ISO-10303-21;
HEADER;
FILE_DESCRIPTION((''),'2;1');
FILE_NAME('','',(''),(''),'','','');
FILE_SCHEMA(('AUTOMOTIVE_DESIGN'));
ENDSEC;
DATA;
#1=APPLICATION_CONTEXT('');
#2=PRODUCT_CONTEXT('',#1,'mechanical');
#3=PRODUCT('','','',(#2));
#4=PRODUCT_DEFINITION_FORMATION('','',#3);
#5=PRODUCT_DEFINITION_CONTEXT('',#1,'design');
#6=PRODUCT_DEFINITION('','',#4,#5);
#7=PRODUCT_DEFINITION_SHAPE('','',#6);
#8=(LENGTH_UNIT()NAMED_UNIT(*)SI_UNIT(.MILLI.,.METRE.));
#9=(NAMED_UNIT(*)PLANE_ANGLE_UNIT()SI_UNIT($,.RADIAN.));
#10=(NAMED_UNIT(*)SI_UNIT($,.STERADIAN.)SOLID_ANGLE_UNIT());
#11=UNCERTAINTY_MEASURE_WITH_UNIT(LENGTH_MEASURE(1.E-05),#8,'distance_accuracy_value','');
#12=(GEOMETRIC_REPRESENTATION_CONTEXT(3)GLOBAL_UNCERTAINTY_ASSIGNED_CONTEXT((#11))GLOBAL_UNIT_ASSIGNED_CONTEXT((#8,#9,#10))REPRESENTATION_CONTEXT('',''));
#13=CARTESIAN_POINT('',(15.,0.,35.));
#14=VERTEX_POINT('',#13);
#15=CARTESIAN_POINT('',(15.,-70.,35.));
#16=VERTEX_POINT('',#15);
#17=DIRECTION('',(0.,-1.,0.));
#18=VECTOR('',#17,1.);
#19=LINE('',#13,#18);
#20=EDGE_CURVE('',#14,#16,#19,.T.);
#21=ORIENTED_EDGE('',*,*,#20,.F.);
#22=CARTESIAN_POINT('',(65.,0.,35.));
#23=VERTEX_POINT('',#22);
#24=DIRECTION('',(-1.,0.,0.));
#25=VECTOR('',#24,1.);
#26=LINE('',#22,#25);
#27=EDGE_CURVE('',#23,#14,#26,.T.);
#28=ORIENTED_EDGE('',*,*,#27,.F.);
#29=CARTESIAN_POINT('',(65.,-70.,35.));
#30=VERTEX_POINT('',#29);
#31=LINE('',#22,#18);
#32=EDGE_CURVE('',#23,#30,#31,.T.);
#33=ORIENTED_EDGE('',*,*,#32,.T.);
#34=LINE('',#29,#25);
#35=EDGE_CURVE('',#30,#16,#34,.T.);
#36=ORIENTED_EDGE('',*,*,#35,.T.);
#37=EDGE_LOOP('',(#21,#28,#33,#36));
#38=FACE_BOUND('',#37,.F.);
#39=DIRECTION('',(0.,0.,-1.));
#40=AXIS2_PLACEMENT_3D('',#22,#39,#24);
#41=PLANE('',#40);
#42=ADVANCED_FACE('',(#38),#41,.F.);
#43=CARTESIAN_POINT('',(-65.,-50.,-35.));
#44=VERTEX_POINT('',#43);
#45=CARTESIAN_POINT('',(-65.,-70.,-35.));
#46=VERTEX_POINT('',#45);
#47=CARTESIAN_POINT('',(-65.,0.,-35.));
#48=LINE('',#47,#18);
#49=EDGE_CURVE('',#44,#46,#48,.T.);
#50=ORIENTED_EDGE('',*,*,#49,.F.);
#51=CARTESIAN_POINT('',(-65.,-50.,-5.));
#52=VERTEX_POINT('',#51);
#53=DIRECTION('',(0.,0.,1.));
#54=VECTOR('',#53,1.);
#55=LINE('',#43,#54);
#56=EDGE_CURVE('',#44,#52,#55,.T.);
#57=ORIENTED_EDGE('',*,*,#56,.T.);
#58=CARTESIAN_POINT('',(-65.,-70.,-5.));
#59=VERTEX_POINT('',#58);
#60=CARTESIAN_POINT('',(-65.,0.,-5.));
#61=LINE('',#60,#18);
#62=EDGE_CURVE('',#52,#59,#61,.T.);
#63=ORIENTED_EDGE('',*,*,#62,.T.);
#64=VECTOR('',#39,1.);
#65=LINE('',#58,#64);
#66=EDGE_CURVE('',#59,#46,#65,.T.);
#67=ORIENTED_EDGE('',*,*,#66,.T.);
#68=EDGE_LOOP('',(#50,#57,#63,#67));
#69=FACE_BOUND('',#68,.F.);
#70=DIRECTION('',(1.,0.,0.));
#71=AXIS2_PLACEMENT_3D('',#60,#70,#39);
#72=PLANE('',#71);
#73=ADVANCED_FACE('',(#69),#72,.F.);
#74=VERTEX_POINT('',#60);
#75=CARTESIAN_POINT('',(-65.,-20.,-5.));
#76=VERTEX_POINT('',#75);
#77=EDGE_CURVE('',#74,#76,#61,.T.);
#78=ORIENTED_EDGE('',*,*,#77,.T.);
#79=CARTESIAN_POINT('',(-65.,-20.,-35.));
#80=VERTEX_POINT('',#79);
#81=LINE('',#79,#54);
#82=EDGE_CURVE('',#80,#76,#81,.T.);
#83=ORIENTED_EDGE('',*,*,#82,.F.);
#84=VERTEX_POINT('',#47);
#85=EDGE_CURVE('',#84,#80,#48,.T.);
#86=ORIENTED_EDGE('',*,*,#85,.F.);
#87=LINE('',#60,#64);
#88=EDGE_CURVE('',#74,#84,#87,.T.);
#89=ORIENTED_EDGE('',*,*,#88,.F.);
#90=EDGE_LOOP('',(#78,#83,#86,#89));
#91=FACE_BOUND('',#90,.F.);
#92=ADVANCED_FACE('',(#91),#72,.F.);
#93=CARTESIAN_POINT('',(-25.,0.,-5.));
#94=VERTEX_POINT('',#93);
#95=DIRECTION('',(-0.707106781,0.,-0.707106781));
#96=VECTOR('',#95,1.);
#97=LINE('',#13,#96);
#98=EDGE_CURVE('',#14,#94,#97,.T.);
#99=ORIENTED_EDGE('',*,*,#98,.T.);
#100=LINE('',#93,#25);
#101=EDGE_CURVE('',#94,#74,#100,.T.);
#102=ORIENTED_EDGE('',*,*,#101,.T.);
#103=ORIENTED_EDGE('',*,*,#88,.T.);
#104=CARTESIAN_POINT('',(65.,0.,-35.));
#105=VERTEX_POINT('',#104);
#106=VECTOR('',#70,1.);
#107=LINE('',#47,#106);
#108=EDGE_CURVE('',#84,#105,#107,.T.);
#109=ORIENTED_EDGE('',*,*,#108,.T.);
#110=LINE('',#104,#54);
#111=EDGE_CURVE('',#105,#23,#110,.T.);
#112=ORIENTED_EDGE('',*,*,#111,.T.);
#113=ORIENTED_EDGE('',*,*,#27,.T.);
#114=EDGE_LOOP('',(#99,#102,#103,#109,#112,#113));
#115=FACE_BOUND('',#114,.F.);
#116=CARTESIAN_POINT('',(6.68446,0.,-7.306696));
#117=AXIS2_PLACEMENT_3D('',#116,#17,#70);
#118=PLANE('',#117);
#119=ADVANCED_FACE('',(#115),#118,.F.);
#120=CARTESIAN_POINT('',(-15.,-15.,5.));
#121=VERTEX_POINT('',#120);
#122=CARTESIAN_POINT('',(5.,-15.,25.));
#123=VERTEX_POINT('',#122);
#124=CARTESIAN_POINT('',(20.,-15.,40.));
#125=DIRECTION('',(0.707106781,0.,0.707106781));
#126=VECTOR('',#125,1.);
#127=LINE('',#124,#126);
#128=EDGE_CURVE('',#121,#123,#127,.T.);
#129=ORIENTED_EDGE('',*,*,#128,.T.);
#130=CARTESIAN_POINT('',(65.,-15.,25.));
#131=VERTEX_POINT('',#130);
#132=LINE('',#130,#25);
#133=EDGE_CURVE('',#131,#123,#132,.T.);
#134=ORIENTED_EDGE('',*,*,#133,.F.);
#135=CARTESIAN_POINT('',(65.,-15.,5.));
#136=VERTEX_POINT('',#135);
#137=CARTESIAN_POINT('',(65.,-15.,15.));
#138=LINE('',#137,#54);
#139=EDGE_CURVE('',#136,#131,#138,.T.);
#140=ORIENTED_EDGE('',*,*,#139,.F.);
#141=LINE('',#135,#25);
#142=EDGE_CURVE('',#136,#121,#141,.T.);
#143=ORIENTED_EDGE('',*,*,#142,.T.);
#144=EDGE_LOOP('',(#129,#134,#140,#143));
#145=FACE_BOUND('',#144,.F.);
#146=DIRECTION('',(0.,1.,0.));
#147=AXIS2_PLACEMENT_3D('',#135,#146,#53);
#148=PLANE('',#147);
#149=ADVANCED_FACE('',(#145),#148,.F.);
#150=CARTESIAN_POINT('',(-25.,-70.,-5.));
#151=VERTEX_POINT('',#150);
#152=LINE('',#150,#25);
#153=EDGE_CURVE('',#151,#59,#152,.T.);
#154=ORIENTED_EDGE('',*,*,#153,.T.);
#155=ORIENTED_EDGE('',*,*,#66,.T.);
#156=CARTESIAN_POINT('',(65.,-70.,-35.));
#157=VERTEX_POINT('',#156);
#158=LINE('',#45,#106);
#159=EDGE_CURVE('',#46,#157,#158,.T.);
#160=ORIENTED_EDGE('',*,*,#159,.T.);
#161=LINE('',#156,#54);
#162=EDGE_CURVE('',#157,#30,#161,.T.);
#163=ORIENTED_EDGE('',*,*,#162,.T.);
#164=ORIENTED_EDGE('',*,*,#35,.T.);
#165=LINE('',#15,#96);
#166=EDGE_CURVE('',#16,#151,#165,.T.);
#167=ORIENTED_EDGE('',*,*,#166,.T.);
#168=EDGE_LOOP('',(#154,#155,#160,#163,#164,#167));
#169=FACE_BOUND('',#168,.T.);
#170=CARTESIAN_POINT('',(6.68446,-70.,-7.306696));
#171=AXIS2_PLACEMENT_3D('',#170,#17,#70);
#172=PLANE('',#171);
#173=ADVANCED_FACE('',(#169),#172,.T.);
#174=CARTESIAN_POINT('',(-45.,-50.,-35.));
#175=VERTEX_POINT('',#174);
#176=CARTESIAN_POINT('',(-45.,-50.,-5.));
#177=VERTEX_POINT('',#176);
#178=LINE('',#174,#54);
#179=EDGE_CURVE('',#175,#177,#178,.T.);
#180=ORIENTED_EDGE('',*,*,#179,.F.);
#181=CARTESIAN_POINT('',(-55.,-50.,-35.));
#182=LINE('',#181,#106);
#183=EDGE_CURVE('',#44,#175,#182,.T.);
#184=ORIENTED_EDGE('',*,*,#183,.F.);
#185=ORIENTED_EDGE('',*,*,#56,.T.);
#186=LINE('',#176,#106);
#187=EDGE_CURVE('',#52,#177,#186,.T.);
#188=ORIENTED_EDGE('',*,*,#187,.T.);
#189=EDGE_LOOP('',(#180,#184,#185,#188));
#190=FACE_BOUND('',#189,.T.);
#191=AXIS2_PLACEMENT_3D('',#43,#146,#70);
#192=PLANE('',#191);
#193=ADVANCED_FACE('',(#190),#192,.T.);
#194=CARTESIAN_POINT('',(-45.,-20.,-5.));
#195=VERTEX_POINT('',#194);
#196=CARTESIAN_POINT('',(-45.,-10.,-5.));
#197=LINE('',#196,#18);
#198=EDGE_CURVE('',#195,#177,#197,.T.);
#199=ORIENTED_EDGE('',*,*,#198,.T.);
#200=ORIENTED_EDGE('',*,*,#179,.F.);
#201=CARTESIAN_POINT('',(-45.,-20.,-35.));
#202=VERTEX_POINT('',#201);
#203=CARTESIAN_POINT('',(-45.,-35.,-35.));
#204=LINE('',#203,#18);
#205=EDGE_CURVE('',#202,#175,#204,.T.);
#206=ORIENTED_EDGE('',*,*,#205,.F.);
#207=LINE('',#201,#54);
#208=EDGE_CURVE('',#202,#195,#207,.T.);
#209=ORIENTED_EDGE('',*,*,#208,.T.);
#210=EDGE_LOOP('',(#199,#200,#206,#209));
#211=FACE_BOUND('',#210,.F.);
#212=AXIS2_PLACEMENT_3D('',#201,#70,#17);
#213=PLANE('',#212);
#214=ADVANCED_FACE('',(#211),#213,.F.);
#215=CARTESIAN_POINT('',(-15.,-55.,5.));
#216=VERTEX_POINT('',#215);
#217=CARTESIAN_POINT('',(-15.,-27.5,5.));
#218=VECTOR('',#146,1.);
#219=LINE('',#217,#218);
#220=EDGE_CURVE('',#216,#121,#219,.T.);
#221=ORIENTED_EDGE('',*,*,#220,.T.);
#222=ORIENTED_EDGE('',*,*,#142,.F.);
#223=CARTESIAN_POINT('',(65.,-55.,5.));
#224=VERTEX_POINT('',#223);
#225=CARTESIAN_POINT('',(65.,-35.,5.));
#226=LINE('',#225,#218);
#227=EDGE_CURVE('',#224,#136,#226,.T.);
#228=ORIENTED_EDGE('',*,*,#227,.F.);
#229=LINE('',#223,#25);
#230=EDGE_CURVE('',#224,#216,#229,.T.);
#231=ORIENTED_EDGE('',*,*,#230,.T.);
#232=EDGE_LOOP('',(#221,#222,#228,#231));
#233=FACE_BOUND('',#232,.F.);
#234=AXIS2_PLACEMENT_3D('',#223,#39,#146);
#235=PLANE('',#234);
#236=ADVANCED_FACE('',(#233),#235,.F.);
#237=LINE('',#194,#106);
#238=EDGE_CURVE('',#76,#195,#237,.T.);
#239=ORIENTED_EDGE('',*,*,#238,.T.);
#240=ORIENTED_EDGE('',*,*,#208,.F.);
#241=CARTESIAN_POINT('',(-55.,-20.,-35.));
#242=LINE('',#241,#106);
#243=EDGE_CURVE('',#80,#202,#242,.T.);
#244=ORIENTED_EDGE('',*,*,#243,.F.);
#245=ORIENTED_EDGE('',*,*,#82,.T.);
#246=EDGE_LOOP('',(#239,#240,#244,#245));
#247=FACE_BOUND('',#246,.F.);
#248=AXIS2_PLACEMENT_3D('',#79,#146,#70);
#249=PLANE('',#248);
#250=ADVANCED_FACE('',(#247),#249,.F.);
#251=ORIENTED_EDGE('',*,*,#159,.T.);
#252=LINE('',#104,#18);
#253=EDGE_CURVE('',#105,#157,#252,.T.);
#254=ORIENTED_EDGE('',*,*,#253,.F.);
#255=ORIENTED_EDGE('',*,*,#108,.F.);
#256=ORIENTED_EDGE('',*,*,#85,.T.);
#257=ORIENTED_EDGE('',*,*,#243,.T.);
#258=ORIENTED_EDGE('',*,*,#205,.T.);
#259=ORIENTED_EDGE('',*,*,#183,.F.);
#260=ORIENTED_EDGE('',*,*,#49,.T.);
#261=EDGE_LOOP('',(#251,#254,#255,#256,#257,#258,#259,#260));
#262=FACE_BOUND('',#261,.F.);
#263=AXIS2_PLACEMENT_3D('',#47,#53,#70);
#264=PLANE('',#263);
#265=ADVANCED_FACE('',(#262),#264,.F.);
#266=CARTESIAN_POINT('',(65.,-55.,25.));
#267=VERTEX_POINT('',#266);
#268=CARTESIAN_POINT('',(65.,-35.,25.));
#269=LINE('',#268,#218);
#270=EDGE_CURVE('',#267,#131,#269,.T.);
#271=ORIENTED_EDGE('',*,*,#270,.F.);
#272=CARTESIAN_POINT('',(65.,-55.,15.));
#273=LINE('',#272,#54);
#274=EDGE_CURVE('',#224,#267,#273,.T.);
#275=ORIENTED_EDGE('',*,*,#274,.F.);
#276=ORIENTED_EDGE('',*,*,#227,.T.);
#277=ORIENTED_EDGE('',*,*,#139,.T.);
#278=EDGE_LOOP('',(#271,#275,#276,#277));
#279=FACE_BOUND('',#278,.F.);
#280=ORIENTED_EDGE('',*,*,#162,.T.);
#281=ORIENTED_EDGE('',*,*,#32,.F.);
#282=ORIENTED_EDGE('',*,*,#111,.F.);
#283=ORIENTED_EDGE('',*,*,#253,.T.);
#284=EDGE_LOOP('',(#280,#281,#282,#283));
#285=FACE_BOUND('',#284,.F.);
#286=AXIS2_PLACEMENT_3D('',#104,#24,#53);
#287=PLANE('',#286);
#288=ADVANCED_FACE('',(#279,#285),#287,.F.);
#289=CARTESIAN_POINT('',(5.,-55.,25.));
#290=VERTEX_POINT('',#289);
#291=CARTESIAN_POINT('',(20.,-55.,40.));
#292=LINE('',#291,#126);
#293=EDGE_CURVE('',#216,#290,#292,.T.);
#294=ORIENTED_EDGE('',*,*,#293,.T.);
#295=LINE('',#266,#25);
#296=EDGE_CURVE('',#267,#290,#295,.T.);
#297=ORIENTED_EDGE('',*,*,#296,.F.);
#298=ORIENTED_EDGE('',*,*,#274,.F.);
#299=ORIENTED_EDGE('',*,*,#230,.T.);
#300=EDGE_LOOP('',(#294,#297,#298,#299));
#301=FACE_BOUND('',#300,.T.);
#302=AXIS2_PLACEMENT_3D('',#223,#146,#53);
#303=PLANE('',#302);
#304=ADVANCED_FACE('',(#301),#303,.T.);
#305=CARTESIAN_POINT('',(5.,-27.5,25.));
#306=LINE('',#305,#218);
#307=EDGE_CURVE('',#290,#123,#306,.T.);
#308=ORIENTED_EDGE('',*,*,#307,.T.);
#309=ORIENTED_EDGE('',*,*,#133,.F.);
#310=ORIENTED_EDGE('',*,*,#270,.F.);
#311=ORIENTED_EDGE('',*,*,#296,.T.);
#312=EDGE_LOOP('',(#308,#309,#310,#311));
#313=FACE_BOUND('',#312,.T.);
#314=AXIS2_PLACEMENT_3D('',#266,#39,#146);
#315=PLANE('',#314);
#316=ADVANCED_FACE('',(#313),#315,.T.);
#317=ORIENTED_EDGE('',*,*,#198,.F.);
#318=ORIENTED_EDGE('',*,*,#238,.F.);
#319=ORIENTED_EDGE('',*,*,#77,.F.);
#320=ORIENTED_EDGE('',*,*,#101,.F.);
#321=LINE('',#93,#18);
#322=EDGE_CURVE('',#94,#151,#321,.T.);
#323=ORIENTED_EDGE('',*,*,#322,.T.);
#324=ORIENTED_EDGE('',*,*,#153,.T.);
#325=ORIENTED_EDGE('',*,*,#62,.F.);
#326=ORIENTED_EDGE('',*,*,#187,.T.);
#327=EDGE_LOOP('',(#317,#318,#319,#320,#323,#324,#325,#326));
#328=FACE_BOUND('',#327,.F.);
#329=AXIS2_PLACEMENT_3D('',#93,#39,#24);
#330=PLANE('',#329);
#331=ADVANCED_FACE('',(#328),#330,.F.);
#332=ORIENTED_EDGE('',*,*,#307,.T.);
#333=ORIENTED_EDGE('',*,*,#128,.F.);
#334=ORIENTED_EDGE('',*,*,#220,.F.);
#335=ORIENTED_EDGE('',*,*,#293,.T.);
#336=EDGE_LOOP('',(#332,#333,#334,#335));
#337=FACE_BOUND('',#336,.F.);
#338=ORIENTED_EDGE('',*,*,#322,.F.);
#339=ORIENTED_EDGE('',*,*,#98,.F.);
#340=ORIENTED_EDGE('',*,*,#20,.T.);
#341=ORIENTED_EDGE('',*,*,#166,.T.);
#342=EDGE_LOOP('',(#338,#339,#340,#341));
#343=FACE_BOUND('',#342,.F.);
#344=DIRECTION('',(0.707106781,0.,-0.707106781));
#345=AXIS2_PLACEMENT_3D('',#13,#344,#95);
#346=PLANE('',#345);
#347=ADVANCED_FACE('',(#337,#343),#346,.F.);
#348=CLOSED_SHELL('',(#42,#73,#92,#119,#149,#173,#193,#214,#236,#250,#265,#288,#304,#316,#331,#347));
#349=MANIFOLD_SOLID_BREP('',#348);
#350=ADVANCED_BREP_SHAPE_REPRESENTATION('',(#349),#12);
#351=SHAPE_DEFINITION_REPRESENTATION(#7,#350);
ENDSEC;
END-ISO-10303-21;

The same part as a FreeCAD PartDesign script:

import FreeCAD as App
import Part
import Sketcher
from FreeCAD import Vector


def add_polygon(sketch, points):
    """Adds a closed chain of lines whose ends are joined by coincident constraints."""
    first, n = sketch.GeometryCount, len(points)
    for a, b in zip(points, points[1:] + points[:1]):
        sketch.addGeometry(Part.LineSegment(App.Vector(*a, 0), App.Vector(*b, 0)), False)
    for i in range(n):
        sketch.addConstraint(Sketcher.Constraint("Coincident", first + i, 2, first + (i + 1) % n, 1))

doc = App.newDocument("Part")
body = doc.addObject("PartDesign::Body", "Body")

sketch1 = body.newObject("Sketcher::SketchObject", "Sketch")
sketch1.AttachmentSupport = (doc.getObject("XZ_Plane"), [""])
sketch1.MapMode = "FlatFace"
add_polygon(sketch1, [(65, -35), (65, 35), (15, 35), (-25, -5), (-65, -5), (-65, -35)])
sketch1.addConstraint(Sketcher.Constraint("Vertical", 0))
sketch1.addConstraint(Sketcher.Constraint("Horizontal", 1))
sketch1.addConstraint(Sketcher.Constraint("Horizontal", 3))
sketch1.addConstraint(Sketcher.Constraint("Vertical", 4))
sketch1.addConstraint(Sketcher.Constraint("Horizontal", 5))
sketch1.addConstraint(Sketcher.Constraint("Symmetric", 0, 2, 4, 2, -1, 1))
sketch1.addConstraint(Sketcher.Constraint("DistanceX", 1, 2, 1, 1, 50.0))
sketch1.addConstraint(Sketcher.Constraint("DistanceX", 3, 2, 3, 1, 40.0))
sketch1.addConstraint(Sketcher.Constraint("DistanceX", 5, 1, 5, 2, 130.0))
sketch1.addConstraint(Sketcher.Constraint("DistanceY", 0, 1, 0, 2, 70.0))
sketch1.addConstraint(Sketcher.Constraint("DistanceY", 4, 2, 4, 1, 30.0))
pad1 = body.newObject("PartDesign::Pad", "Pad")
pad1.Profile = sketch1
pad1.Length = 70

sketch2 = body.newObject("Sketcher::SketchObject", "Sketch001")
sketch2.AttachmentSupport = (doc.getObject("XY_Plane"), [""])
sketch2.MapMode = "FlatFace"
sketch2.AttachmentOffset = App.Placement(Vector(0, 0, -35), App.Rotation())
add_polygon(sketch2, [(-65, -50), (-65, -20), (-45, -20), (-45, -50)])
sketch2.addConstraint(Sketcher.Constraint("Vertical", 0))
sketch2.addConstraint(Sketcher.Constraint("Horizontal", 1))
sketch2.addConstraint(Sketcher.Constraint("Vertical", 2))
sketch2.addConstraint(Sketcher.Constraint("Horizontal", 3))
sketch2.addConstraint(Sketcher.Constraint("DistanceX", 1, 1, 1, 2, 20.0))
sketch2.addConstraint(Sketcher.Constraint("DistanceY", 0, 1, 0, 2, 30.0))
sketch2.addConstraint(Sketcher.Constraint("DistanceX", 0, 2, -1, 1, 65.0))
sketch2.addConstraint(Sketcher.Constraint("DistanceY", 0, 2, -1, 1, 20.0))
pocket1 = body.newObject("PartDesign::Pocket", "Pocket")
pocket1.Profile = sketch2
pocket1.Type = "ThroughAll"
pocket1.Reversed = True

sketch3 = body.newObject("Sketcher::SketchObject", "Sketch002")
sketch3.AttachmentSupport = (doc.getObject("YZ_Plane"), [""])
sketch3.MapMode = "FlatFace"
sketch3.AttachmentOffset = App.Placement(Vector(0, 0, 65), App.Rotation())
add_polygon(sketch3, [(-55, 25), (-55, 5), (-15, 5), (-15, 25)])
sketch3.addConstraint(Sketcher.Constraint("Vertical", 0))
sketch3.addConstraint(Sketcher.Constraint("Horizontal", 1))
sketch3.addConstraint(Sketcher.Constraint("Vertical", 2))
sketch3.addConstraint(Sketcher.Constraint("Horizontal", 3))
sketch3.addConstraint(Sketcher.Constraint("DistanceX", 1, 1, 1, 2, 40.0))
sketch3.addConstraint(Sketcher.Constraint("DistanceY", 0, 2, 0, 1, 20.0))
sketch3.addConstraint(Sketcher.Constraint("DistanceX", 0, 2, -1, 1, 55.0))
sketch3.addConstraint(Sketcher.Constraint("DistanceY", -1, 1, 0, 2, 5.0))
pocket2 = body.newObject("PartDesign::Pocket", "Pocket001")
pocket2.Profile = sketch3
pocket2.Type = "ThroughAll"

doc.recompute()
